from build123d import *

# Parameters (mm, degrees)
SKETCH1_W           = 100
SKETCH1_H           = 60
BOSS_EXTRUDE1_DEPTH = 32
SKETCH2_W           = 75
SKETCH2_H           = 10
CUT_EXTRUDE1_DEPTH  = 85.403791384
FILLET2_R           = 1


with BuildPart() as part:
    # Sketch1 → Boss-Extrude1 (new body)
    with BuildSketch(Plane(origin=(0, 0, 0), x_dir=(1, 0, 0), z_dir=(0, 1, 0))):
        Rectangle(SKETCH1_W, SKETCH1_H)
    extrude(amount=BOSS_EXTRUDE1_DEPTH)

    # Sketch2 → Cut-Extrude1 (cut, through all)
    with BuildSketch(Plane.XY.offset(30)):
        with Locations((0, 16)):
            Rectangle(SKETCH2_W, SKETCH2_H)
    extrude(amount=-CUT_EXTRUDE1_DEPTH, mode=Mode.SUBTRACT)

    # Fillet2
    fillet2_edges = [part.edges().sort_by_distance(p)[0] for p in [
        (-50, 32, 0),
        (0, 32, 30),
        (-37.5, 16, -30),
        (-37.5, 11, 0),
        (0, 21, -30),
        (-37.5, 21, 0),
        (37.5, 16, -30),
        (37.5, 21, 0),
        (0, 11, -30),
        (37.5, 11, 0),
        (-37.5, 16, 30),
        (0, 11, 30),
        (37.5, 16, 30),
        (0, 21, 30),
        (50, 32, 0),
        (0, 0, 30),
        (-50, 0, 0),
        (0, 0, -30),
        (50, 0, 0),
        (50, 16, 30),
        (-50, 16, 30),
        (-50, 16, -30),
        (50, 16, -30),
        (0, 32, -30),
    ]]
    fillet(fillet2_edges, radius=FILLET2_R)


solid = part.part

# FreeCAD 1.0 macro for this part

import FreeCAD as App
import Part
import Sketcher

V = App.Vector
Q = App.Units.Quantity

doc = App.newDocument("Part")
body = doc.addObject("PartDesign::Body", "Body")

# Sketch on XZ plane
sketch1 = body.newObject("Sketcher::SketchObject", "Sketch")
sketch1.AttachmentSupport = (doc.getObject("XZ_Plane"), [""])
sketch1.MapMode = "FlatFace"
sketch1.addGeometry(Part.LineSegment(V(-50, -30, 0), V(-50, 30, 0)), False)
sketch1.addGeometry(Part.LineSegment(V(-50, 30, 0), V(50, 30, 0)), False)
sketch1.addGeometry(Part.LineSegment(V(50, 30, 0), V(50, -30, 0)), False)
sketch1.addGeometry(Part.LineSegment(V(50, -30, 0), V(-50, -30, 0)), False)
sketch1.addConstraint(Sketcher.Constraint("Coincident", 0, 2, 1, 1))
sketch1.addConstraint(Sketcher.Constraint("Coincident", 1, 2, 2, 1))
sketch1.addConstraint(Sketcher.Constraint("Coincident", 2, 2, 3, 1))
sketch1.addConstraint(Sketcher.Constraint("Coincident", 3, 2, 0, 1))
sketch1.addConstraint(Sketcher.Constraint("Vertical", 0))
sketch1.addConstraint(Sketcher.Constraint("Horizontal", 1))
sketch1.addConstraint(Sketcher.Constraint("Vertical", 2))
sketch1.addConstraint(Sketcher.Constraint("Horizontal", 3))
sketch1.addConstraint(Sketcher.Constraint("Symmetric", 0, 2, 2, 2, -1, 1))
sketch1.addConstraint(Sketcher.Constraint("DistanceX", 1, 1, 1, 2, Q("100 mm")))
sketch1.addConstraint(Sketcher.Constraint("DistanceY", 0, 1, 0, 2, Q("60 mm")))
pad1 = body.newObject("PartDesign::Pad", "Pad")
pad1.Profile = sketch1
pad1.Length = 32
pad1.Reversed = True

# Sketch on XY plane
sketch2 = body.newObject("Sketcher::SketchObject", "Sketch001")
sketch2.AttachmentSupport = (doc.getObject("XY_Plane"), [""])
sketch2.MapMode = "FlatFace"
sketch2.AttachmentOffset = App.Placement(V(0, 0, 30), App.Rotation())
sketch2.addGeometry(Part.LineSegment(V(-38, 21, 0), V(-38, 11, 0)), False)
sketch2.addGeometry(Part.LineSegment(V(-38, 11, 0), V(38, 11, 0)), False)
sketch2.addGeometry(Part.LineSegment(V(38, 11, 0), V(38, 21, 0)), False)
sketch2.addGeometry(Part.LineSegment(V(38, 21, 0), V(-38, 21, 0)), False)
sketch2.addConstraint(Sketcher.Constraint("Coincident", 0, 2, 1, 1))
sketch2.addConstraint(Sketcher.Constraint("Coincident", 1, 2, 2, 1))
sketch2.addConstraint(Sketcher.Constraint("Coincident", 2, 2, 3, 1))
sketch2.addConstraint(Sketcher.Constraint("Coincident", 3, 2, 0, 1))
sketch2.addConstraint(Sketcher.Constraint("Vertical", 0))
sketch2.addConstraint(Sketcher.Constraint("Horizontal", 1))
sketch2.addConstraint(Sketcher.Constraint("Vertical", 2))
sketch2.addConstraint(Sketcher.Constraint("Horizontal", 3))
sketch2.addConstraint(Sketcher.Constraint("DistanceX", 1, 1, 1, 2, Q("75 mm")))
sketch2.addConstraint(Sketcher.Constraint("DistanceY", 0, 2, 0, 1, Q("10 mm")))
sketch2.addConstraint(Sketcher.Constraint("DistanceY", -1, 1, 0, 2, Q("11 mm")))
sketch2.addConstraint(Sketcher.Constraint("DistanceX", 0, 2, -1, 1, Q("37.5 mm")))
pocket1 = body.newObject("PartDesign::Pocket", "Pocket")
pocket1.Profile = sketch2
pocket1.Type = "ThroughAll"
doc.recompute()

fillet = body.newObject("PartDesign::Fillet", "Fillet")
fillet.Base = (pocket1, ["Edge1"])
fillet.UseAllEdges = True
fillet.Radius = 1

doc.recompute()
